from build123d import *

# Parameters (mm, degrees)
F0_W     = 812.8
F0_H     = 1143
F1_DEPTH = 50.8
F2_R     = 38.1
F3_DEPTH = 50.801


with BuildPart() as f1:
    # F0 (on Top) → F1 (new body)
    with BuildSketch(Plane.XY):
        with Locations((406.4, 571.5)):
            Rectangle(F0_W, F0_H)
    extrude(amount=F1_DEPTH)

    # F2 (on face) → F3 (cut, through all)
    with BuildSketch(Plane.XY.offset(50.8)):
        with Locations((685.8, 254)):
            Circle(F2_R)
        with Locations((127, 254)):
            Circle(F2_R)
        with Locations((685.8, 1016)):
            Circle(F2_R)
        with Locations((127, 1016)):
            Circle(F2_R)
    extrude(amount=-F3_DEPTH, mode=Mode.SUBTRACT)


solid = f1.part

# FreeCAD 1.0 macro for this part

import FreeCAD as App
import Part
import Sketcher
from FreeCAD import Vector
Q = App.Units.Quantity

doc = App.newDocument("Part")
body = doc.addObject("PartDesign::Body", "Body")

# Sketch on XY plane
sketch1 = doc.addObject("Sketcher::SketchObject", "Sketch")
body.addObject(sketch1)
sketch1.AttachmentSupport = (doc.XY_Plane, [""])
sketch1.MapMode = "FlatFace"
sketch1.addGeometry([
    Part.LineSegment(Vector(0, 1143, 0), Vector(0, 0, 0)),
    Part.LineSegment(Vector(0, 0, 0), Vector(812.8, 0, 0)),
    Part.LineSegment(Vector(812.8, 0, 0), Vector(812.8, 1143, 0)),
    Part.LineSegment(Vector(812.8, 1143, 0), Vector(0, 1143, 0)),
], False)
sketch1.addConstraint([
    Sketcher.Constraint("Coincident", 0, 2, 1, 1),
    Sketcher.Constraint("Coincident", 1, 2, 2, 1),
    Sketcher.Constraint("Coincident", 2, 2, 3, 1),
    Sketcher.Constraint("Coincident", 3, 2, 0, 1),
    Sketcher.Constraint("Vertical", 0),
    Sketcher.Constraint("Horizontal", 1),
    Sketcher.Constraint("Vertical", 2),
    Sketcher.Constraint("Horizontal", 3),
    Sketcher.Constraint("Coincident", 0, 2, -1, 1),
    Sketcher.Constraint("DistanceX", 1, 1, 1, 2, Q("32 in")),
    Sketcher.Constraint("DistanceY", 0, 2, 0, 1, Q("45 in")),
])
pad1 = doc.addObject("PartDesign::Pad", "Pad")
body.addObject(pad1)
pad1.Profile = sketch1
pad1.Length = Q("2 in")

# Sketch on XY plane
sketch2 = doc.addObject("Sketcher::SketchObject", "Sketch001")
body.addObject(sketch2)
sketch2.AttachmentSupport = (doc.XY_Plane, [""])
sketch2.MapMode = "FlatFace"
sketch2.AttachmentOffset = App.Placement(Vector(0, 0, 2 * 25.4), App.Rotation())
sketch2.addGeometry([
    Part.Circle(Vector(685.8, 254, 0), Vector(0, 0, 1), 38.1),
    Part.Circle(Vector(127, 254, 0), Vector(0, 0, 1), 38.1),
    Part.Circle(Vector(685.8, 1016, 0), Vector(0, 0, 1), 38.1),
    Part.Circle(Vector(127, 1016, 0), Vector(0, 0, 1), 38.1),
], False)
sketch2.addConstraint([
    Sketcher.Constraint("Equal", 0, 1),
    Sketcher.Constraint("Equal", 1, 2),
    Sketcher.Constraint("Equal", 2, 3),
    Sketcher.Constraint("Horizontal", 0, 3, 1, 3),
    Sketcher.Constraint("Horizontal", 2, 3, 3, 3),
    Sketcher.Constraint("Vertical", 0, 3, 2, 3),
    Sketcher.Constraint("Vertical", 1, 3, 3, 3),
    Sketcher.Constraint("Diameter", 0, Q("3 in")),
    Sketcher.Constraint("DistanceX", -1, 1, 0, 3, Q("27 in")),
    Sketcher.Constraint("DistanceY", -1, 1, 0, 3, Q("10 in")),
    Sketcher.Constraint("DistanceX", -1, 1, 1, 3, Q("5 in")),
    Sketcher.Constraint("DistanceY", -1, 1, 2, 3, Q("40 in")),
])
pocket1 = doc.addObject("PartDesign::Pocket", "Pocket")
body.addObject(pocket1)
pocket1.Profile = sketch2
pocket1.Type = "ThroughAll"

doc.recompute()
